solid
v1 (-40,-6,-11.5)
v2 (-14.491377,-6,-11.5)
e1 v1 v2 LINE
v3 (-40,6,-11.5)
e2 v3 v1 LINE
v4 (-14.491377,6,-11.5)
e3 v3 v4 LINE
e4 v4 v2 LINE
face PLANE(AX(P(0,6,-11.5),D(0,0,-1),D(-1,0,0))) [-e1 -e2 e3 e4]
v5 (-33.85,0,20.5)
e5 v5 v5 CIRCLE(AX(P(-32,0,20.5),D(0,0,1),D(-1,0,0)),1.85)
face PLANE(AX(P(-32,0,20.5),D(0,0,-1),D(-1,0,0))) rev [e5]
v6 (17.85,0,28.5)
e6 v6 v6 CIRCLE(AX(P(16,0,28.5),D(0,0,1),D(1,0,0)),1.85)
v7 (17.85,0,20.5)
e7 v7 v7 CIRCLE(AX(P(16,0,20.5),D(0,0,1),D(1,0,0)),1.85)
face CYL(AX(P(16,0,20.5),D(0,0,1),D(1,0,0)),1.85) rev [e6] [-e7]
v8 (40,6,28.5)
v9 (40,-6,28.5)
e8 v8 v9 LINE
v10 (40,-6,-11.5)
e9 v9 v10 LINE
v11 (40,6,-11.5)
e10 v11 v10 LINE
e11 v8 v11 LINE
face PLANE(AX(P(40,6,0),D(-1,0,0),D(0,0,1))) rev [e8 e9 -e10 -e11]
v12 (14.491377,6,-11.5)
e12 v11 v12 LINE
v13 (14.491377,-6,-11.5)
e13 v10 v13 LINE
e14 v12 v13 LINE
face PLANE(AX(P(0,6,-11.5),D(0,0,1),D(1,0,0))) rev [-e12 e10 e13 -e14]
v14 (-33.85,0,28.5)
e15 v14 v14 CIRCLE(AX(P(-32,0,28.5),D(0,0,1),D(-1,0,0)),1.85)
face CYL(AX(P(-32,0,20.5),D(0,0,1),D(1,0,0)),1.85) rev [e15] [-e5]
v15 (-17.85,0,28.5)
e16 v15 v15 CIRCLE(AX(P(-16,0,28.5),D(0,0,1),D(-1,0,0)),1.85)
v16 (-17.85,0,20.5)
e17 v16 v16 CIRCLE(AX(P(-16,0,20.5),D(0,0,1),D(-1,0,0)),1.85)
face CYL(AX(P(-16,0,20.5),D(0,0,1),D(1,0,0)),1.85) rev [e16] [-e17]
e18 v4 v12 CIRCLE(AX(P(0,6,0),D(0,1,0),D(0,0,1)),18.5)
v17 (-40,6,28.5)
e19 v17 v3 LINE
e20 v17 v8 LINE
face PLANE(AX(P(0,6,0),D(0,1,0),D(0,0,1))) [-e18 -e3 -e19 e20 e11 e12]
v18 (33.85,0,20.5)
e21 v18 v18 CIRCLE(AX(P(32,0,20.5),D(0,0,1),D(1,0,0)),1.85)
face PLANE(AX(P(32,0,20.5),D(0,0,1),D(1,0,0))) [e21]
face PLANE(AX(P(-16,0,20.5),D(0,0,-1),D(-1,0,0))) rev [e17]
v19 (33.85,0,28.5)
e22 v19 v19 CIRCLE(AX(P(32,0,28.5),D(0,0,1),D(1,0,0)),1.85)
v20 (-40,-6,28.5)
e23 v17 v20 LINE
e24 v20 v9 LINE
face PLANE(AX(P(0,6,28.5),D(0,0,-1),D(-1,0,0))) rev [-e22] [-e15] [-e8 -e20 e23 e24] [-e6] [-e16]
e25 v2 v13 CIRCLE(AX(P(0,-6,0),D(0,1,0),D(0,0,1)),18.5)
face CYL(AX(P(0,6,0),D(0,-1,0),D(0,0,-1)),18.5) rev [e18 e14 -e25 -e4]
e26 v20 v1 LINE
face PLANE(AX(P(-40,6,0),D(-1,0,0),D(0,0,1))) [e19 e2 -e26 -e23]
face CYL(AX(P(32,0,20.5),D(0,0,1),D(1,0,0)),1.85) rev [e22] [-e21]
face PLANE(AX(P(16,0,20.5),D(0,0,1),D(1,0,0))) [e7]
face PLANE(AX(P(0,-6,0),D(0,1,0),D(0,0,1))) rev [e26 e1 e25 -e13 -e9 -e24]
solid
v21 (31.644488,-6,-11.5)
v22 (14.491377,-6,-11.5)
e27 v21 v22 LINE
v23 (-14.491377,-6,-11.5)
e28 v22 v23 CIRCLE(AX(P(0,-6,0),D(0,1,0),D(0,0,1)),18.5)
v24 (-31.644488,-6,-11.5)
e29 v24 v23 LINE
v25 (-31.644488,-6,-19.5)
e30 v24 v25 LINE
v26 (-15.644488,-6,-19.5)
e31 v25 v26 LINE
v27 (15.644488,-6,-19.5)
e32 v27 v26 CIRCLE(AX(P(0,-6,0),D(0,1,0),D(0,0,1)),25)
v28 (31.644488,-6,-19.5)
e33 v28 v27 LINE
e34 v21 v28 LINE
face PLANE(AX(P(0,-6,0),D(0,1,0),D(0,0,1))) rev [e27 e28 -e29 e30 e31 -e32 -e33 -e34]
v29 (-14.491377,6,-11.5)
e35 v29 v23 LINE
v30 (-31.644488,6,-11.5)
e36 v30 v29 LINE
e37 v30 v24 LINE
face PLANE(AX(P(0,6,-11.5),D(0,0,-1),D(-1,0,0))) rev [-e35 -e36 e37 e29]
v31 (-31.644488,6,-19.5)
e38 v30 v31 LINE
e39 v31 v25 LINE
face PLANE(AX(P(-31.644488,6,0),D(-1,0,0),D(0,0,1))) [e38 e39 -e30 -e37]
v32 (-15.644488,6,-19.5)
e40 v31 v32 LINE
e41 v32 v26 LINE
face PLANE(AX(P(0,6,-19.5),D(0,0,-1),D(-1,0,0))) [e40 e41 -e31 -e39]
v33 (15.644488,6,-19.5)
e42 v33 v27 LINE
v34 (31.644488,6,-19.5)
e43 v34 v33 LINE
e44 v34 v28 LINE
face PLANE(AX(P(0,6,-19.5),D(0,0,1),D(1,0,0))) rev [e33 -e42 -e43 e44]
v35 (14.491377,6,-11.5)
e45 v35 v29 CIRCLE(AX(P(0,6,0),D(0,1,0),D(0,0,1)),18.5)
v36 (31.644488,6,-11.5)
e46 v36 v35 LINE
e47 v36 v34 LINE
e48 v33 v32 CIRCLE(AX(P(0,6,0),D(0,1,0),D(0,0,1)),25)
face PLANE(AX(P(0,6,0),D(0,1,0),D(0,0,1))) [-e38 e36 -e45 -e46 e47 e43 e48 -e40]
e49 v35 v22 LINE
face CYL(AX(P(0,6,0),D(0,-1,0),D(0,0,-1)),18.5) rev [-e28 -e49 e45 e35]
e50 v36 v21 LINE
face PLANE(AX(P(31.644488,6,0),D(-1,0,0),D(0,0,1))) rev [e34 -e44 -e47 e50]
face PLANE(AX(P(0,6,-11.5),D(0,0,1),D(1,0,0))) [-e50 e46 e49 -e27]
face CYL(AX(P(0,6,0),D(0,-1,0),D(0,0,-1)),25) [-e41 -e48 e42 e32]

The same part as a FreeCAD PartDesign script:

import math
import FreeCAD as App
import Part
import Sketcher
Q = App.Units.Quantity

doc = App.newDocument("Part")
params = doc.addObject("Spreadsheet::Sheet", "Params")
for row, (alias, value) in enumerate([
    ("sketch1_radius", "18.5 mm"),
    ("sketch1_width", "80 mm"),
    ("sketch1_height", "40 mm"),
    ("pad1_length", "12 mm"),
    ("sketch2_diameter", "3.7 mm"),
    ("pocket1_length", "8 mm"),
    ("sketch3_radius", "25 mm"),
    ("sketch3_radius2", "18.5 mm"),
    ("sketch3_width", "16 mm"),
    ("sketch3_height", "8 mm"),
    ("pad2_length", "12 mm"),
], start=1):
    params.set(f"A{row}", alias)
    params.set(f"B{row}", "=" + value)
    params.setAlias(f"B{row}", alias)

body = doc.addObject("PartDesign::Body", "Body")

sketch1 = body.newObject("Sketcher::SketchObject", "Sketch")
sketch1.AttachmentSupport = (doc.getObject("XZ_Plane"), [""])
sketch1.MapMode = "FlatFace"
sketch1.addGeometry([
    Part.LineSegment(App.Vector(-40, -12, 0), App.Vector(-40, 28, 0)),
    Part.LineSegment(App.Vector(-40, 28, 0), App.Vector(40, 28, 0)),
    Part.LineSegment(App.Vector(40, 28, 0), App.Vector(40, -12, 0)),
    Part.LineSegment(App.Vector(40, -12, 0), App.Vector(14, -12, 0)),
    Part.ArcOfCircle(Part.Circle(App.Vector(0, 0, 0), App.Vector(0, 0, 1), 18), math.radians(-38), math.radians(0)),
    Part.ArcOfCircle(Part.Circle(App.Vector(0, 0, 0), App.Vector(0, 0, 1), 18), math.radians(0), math.radians(218)),
    Part.LineSegment(App.Vector(-14, -12, 0), App.Vector(-40, -12, 0)),
], False)
sketch1.addConstraint([
    Sketcher.Constraint("Coincident", 0, 2, 1, 1),
    Sketcher.Constraint("Coincident", 1, 2, 2, 1),
    Sketcher.Constraint("Coincident", 2, 2, 3, 1),
    Sketcher.Constraint("Coincident", 3, 2, 4, 1),
    Sketcher.Constraint("Tangent", 4, 2, 5, 1),
    Sketcher.Constraint("Coincident", 5, 2, 6, 1),
    Sketcher.Constraint("Coincident", 6, 2, 0, 1),
    Sketcher.Constraint("Vertical", 0),
    Sketcher.Constraint("Horizontal", 1),
    Sketcher.Constraint("Vertical", 2),
    Sketcher.Constraint("Horizontal", 3),
    Sketcher.Constraint("Horizontal", 6),
    Sketcher.Constraint("Coincident", 4, 3, -1, 1),
    Sketcher.Constraint("Equal", 4, 5),
    Sketcher.Constraint("Symmetric", 2, 2, 6, 2, -2),
    Sketcher.Constraint("PointOnObject", 4, 2, -1),
    Sketcher.Constraint("Radius", 4, Q("18.5 mm")),
    Sketcher.Constraint("DistanceX", 1, 1, 1, 2, Q("80 mm")),
    Sketcher.Constraint("DistanceY", 0, 1, 0, 2, Q("40 mm")),
    Sketcher.Constraint("DistanceY", -1, 1, 0, 2, Q("28.5 mm")),
])
sketch1.setExpression("Constraints[16]", "Params.sketch1_radius")
sketch1.setExpression("Constraints[17]", "Params.sketch1_width")
sketch1.setExpression("Constraints[18]", "Params.sketch1_height")
pad1 = body.newObject("PartDesign::Pad", "Pad")
pad1.Profile = sketch1
pad1.setExpression("Length", "Params.pad1_length")
pad1.Midplane = True

sketch2 = body.newObject("Sketcher::SketchObject", "Sketch001")
sketch2.AttachmentSupport = (doc.getObject("XY_Plane"), [""])
sketch2.MapMode = "FlatFace"
sketch2.AttachmentOffset = App.Placement(App.Vector(0, 0, 28.5), App.Rotation())
sketch2.addGeometry([
    Part.Circle(App.Vector(32, 0, 0), App.Vector(0, 0, 1), 1.9),
    Part.Circle(App.Vector(16, 0, 0), App.Vector(0, 0, 1), 1.9),
    Part.Circle(App.Vector(-16, 0, 0), App.Vector(0, 0, 1), 1.9),
    Part.Circle(App.Vector(-32, 0, 0), App.Vector(0, 0, 1), 1.9),
], False)
sketch2.addConstraint([
    Sketcher.Constraint("Equal", 0, 1),
    Sketcher.Constraint("Equal", 1, 2),
    Sketcher.Constraint("Equal", 2, 3),
    Sketcher.Constraint("Symmetric", 1, 3, 2, 3, -1, 1),
    Sketcher.Constraint("Symmetric", 0, 3, 3, 3, -1, 1),
    Sketcher.Constraint("PointOnObject", 0, 3, -1),
    Sketcher.Constraint("PointOnObject", 1, 3, -1),
    Sketcher.Constraint("Diameter", 0, Q("3.7 mm")),
    Sketcher.Constraint("DistanceX", -1, 1, 0, 3, Q("32 mm")),
    Sketcher.Constraint("DistanceX", -1, 1, 1, 3, Q("16 mm")),
])
sketch2.setExpression("Constraints[7]", "Params.sketch2_diameter")
pocket1 = body.newObject("PartDesign::Pocket", "Pocket")
pocket1.Profile = sketch2
pocket1.setExpression("Length", "Params.pocket1_length")
body2 = doc.addObject("PartDesign::Body", "Body001")

sketch3 = body2.newObject("Sketcher::SketchObject", "Sketch002")
sketch3.AttachmentSupport = (doc.getObject("XZ_Plane001"), [""])
sketch3.MapMode = "FlatFace"
sketch3.addGeometry([
    Part.LineSegment(App.Vector(-32, -20, 0), App.Vector(-32, -12, 0)),
    Part.LineSegment(App.Vector(-32, -12, 0), App.Vector(-14, -12, 0)),
    Part.ArcOfCircle(Part.Circle(App.Vector(0, 0, 0), App.Vector(0, 0, 1), 18), math.radians(-142), math.radians(-38)),
    Part.LineSegment(App.Vector(14, -12, 0), App.Vector(32, -12, 0)),
    Part.LineSegment(App.Vector(32, -12, 0), App.Vector(32, -20, 0)),
    Part.LineSegment(App.Vector(32, -20, 0), App.Vector(16, -20, 0)),
    Part.ArcOfCircle(Part.Circle(App.Vector(0, 0, 0), App.Vector(0, 0, 1), 25), math.radians(-129), math.radians(-51)),
    Part.LineSegment(App.Vector(-16, -20, 0), App.Vector(-32, -20, 0)),
], False)
sketch3.addConstraint([
    Sketcher.Constraint("Coincident", 0, 2, 1, 1),
    Sketcher.Constraint("Coincident", 1, 2, 2, 1),
    Sketcher.Constraint("Coincident", 2, 2, 3, 1),
    Sketcher.Constraint("Coincident", 3, 2, 4, 1),
    Sketcher.Constraint("Coincident", 4, 2, 5, 1),
    Sketcher.Constraint("Coincident", 5, 2, 6, 2),
    Sketcher.Constraint("Coincident", 6, 1, 7, 1),
    Sketcher.Constraint("Coincident", 7, 2, 0, 1),
    Sketcher.Constraint("Vertical", 0),
    Sketcher.Constraint("Horizontal", 1),
    Sketcher.Constraint("Horizontal", 3),
    Sketcher.Constraint("Vertical", 4),
    Sketcher.Constraint("Horizontal", 5),
    Sketcher.Constraint("Horizontal", 7),
    Sketcher.Constraint("Coincident", 2, 3, -1, 1),
    Sketcher.Constraint("Coincident", 6, 3, -1, 1),
    Sketcher.Constraint("Symmetric", 0, 2, 3, 2, -2),
    Sketcher.Constraint("Horizontal", 5, 2, 6, 1),
    Sketcher.Constraint("Radius", 6, Q("25 mm")),
    Sketcher.Constraint("Radius", 2, Q("18.5 mm")),
    Sketcher.Constraint("DistanceX", 5, 2, 5, 1, Q("16 mm")),
    Sketcher.Constraint("DistanceY", 0, 1, 0, 2, Q("8 mm")),
    Sketcher.Constraint("DistanceY", 0, 2, -1, 1, Q("11.5 mm")),
])
sketch3.setExpression("Constraints[18]", "Params.sketch3_radius")
sketch3.setExpression("Constraints[19]", "Params.sketch3_radius2")
sketch3.setExpression("Constraints[20]", "Params.sketch3_width")
sketch3.setExpression("Constraints[21]", "Params.sketch3_height")
pad2 = body2.newObject("PartDesign::Pad", "Pad001")
pad2.Profile = sketch3
pad2.setExpression("Length", "Params.pad2_length")
pad2.Midplane = True

doc.recompute()
